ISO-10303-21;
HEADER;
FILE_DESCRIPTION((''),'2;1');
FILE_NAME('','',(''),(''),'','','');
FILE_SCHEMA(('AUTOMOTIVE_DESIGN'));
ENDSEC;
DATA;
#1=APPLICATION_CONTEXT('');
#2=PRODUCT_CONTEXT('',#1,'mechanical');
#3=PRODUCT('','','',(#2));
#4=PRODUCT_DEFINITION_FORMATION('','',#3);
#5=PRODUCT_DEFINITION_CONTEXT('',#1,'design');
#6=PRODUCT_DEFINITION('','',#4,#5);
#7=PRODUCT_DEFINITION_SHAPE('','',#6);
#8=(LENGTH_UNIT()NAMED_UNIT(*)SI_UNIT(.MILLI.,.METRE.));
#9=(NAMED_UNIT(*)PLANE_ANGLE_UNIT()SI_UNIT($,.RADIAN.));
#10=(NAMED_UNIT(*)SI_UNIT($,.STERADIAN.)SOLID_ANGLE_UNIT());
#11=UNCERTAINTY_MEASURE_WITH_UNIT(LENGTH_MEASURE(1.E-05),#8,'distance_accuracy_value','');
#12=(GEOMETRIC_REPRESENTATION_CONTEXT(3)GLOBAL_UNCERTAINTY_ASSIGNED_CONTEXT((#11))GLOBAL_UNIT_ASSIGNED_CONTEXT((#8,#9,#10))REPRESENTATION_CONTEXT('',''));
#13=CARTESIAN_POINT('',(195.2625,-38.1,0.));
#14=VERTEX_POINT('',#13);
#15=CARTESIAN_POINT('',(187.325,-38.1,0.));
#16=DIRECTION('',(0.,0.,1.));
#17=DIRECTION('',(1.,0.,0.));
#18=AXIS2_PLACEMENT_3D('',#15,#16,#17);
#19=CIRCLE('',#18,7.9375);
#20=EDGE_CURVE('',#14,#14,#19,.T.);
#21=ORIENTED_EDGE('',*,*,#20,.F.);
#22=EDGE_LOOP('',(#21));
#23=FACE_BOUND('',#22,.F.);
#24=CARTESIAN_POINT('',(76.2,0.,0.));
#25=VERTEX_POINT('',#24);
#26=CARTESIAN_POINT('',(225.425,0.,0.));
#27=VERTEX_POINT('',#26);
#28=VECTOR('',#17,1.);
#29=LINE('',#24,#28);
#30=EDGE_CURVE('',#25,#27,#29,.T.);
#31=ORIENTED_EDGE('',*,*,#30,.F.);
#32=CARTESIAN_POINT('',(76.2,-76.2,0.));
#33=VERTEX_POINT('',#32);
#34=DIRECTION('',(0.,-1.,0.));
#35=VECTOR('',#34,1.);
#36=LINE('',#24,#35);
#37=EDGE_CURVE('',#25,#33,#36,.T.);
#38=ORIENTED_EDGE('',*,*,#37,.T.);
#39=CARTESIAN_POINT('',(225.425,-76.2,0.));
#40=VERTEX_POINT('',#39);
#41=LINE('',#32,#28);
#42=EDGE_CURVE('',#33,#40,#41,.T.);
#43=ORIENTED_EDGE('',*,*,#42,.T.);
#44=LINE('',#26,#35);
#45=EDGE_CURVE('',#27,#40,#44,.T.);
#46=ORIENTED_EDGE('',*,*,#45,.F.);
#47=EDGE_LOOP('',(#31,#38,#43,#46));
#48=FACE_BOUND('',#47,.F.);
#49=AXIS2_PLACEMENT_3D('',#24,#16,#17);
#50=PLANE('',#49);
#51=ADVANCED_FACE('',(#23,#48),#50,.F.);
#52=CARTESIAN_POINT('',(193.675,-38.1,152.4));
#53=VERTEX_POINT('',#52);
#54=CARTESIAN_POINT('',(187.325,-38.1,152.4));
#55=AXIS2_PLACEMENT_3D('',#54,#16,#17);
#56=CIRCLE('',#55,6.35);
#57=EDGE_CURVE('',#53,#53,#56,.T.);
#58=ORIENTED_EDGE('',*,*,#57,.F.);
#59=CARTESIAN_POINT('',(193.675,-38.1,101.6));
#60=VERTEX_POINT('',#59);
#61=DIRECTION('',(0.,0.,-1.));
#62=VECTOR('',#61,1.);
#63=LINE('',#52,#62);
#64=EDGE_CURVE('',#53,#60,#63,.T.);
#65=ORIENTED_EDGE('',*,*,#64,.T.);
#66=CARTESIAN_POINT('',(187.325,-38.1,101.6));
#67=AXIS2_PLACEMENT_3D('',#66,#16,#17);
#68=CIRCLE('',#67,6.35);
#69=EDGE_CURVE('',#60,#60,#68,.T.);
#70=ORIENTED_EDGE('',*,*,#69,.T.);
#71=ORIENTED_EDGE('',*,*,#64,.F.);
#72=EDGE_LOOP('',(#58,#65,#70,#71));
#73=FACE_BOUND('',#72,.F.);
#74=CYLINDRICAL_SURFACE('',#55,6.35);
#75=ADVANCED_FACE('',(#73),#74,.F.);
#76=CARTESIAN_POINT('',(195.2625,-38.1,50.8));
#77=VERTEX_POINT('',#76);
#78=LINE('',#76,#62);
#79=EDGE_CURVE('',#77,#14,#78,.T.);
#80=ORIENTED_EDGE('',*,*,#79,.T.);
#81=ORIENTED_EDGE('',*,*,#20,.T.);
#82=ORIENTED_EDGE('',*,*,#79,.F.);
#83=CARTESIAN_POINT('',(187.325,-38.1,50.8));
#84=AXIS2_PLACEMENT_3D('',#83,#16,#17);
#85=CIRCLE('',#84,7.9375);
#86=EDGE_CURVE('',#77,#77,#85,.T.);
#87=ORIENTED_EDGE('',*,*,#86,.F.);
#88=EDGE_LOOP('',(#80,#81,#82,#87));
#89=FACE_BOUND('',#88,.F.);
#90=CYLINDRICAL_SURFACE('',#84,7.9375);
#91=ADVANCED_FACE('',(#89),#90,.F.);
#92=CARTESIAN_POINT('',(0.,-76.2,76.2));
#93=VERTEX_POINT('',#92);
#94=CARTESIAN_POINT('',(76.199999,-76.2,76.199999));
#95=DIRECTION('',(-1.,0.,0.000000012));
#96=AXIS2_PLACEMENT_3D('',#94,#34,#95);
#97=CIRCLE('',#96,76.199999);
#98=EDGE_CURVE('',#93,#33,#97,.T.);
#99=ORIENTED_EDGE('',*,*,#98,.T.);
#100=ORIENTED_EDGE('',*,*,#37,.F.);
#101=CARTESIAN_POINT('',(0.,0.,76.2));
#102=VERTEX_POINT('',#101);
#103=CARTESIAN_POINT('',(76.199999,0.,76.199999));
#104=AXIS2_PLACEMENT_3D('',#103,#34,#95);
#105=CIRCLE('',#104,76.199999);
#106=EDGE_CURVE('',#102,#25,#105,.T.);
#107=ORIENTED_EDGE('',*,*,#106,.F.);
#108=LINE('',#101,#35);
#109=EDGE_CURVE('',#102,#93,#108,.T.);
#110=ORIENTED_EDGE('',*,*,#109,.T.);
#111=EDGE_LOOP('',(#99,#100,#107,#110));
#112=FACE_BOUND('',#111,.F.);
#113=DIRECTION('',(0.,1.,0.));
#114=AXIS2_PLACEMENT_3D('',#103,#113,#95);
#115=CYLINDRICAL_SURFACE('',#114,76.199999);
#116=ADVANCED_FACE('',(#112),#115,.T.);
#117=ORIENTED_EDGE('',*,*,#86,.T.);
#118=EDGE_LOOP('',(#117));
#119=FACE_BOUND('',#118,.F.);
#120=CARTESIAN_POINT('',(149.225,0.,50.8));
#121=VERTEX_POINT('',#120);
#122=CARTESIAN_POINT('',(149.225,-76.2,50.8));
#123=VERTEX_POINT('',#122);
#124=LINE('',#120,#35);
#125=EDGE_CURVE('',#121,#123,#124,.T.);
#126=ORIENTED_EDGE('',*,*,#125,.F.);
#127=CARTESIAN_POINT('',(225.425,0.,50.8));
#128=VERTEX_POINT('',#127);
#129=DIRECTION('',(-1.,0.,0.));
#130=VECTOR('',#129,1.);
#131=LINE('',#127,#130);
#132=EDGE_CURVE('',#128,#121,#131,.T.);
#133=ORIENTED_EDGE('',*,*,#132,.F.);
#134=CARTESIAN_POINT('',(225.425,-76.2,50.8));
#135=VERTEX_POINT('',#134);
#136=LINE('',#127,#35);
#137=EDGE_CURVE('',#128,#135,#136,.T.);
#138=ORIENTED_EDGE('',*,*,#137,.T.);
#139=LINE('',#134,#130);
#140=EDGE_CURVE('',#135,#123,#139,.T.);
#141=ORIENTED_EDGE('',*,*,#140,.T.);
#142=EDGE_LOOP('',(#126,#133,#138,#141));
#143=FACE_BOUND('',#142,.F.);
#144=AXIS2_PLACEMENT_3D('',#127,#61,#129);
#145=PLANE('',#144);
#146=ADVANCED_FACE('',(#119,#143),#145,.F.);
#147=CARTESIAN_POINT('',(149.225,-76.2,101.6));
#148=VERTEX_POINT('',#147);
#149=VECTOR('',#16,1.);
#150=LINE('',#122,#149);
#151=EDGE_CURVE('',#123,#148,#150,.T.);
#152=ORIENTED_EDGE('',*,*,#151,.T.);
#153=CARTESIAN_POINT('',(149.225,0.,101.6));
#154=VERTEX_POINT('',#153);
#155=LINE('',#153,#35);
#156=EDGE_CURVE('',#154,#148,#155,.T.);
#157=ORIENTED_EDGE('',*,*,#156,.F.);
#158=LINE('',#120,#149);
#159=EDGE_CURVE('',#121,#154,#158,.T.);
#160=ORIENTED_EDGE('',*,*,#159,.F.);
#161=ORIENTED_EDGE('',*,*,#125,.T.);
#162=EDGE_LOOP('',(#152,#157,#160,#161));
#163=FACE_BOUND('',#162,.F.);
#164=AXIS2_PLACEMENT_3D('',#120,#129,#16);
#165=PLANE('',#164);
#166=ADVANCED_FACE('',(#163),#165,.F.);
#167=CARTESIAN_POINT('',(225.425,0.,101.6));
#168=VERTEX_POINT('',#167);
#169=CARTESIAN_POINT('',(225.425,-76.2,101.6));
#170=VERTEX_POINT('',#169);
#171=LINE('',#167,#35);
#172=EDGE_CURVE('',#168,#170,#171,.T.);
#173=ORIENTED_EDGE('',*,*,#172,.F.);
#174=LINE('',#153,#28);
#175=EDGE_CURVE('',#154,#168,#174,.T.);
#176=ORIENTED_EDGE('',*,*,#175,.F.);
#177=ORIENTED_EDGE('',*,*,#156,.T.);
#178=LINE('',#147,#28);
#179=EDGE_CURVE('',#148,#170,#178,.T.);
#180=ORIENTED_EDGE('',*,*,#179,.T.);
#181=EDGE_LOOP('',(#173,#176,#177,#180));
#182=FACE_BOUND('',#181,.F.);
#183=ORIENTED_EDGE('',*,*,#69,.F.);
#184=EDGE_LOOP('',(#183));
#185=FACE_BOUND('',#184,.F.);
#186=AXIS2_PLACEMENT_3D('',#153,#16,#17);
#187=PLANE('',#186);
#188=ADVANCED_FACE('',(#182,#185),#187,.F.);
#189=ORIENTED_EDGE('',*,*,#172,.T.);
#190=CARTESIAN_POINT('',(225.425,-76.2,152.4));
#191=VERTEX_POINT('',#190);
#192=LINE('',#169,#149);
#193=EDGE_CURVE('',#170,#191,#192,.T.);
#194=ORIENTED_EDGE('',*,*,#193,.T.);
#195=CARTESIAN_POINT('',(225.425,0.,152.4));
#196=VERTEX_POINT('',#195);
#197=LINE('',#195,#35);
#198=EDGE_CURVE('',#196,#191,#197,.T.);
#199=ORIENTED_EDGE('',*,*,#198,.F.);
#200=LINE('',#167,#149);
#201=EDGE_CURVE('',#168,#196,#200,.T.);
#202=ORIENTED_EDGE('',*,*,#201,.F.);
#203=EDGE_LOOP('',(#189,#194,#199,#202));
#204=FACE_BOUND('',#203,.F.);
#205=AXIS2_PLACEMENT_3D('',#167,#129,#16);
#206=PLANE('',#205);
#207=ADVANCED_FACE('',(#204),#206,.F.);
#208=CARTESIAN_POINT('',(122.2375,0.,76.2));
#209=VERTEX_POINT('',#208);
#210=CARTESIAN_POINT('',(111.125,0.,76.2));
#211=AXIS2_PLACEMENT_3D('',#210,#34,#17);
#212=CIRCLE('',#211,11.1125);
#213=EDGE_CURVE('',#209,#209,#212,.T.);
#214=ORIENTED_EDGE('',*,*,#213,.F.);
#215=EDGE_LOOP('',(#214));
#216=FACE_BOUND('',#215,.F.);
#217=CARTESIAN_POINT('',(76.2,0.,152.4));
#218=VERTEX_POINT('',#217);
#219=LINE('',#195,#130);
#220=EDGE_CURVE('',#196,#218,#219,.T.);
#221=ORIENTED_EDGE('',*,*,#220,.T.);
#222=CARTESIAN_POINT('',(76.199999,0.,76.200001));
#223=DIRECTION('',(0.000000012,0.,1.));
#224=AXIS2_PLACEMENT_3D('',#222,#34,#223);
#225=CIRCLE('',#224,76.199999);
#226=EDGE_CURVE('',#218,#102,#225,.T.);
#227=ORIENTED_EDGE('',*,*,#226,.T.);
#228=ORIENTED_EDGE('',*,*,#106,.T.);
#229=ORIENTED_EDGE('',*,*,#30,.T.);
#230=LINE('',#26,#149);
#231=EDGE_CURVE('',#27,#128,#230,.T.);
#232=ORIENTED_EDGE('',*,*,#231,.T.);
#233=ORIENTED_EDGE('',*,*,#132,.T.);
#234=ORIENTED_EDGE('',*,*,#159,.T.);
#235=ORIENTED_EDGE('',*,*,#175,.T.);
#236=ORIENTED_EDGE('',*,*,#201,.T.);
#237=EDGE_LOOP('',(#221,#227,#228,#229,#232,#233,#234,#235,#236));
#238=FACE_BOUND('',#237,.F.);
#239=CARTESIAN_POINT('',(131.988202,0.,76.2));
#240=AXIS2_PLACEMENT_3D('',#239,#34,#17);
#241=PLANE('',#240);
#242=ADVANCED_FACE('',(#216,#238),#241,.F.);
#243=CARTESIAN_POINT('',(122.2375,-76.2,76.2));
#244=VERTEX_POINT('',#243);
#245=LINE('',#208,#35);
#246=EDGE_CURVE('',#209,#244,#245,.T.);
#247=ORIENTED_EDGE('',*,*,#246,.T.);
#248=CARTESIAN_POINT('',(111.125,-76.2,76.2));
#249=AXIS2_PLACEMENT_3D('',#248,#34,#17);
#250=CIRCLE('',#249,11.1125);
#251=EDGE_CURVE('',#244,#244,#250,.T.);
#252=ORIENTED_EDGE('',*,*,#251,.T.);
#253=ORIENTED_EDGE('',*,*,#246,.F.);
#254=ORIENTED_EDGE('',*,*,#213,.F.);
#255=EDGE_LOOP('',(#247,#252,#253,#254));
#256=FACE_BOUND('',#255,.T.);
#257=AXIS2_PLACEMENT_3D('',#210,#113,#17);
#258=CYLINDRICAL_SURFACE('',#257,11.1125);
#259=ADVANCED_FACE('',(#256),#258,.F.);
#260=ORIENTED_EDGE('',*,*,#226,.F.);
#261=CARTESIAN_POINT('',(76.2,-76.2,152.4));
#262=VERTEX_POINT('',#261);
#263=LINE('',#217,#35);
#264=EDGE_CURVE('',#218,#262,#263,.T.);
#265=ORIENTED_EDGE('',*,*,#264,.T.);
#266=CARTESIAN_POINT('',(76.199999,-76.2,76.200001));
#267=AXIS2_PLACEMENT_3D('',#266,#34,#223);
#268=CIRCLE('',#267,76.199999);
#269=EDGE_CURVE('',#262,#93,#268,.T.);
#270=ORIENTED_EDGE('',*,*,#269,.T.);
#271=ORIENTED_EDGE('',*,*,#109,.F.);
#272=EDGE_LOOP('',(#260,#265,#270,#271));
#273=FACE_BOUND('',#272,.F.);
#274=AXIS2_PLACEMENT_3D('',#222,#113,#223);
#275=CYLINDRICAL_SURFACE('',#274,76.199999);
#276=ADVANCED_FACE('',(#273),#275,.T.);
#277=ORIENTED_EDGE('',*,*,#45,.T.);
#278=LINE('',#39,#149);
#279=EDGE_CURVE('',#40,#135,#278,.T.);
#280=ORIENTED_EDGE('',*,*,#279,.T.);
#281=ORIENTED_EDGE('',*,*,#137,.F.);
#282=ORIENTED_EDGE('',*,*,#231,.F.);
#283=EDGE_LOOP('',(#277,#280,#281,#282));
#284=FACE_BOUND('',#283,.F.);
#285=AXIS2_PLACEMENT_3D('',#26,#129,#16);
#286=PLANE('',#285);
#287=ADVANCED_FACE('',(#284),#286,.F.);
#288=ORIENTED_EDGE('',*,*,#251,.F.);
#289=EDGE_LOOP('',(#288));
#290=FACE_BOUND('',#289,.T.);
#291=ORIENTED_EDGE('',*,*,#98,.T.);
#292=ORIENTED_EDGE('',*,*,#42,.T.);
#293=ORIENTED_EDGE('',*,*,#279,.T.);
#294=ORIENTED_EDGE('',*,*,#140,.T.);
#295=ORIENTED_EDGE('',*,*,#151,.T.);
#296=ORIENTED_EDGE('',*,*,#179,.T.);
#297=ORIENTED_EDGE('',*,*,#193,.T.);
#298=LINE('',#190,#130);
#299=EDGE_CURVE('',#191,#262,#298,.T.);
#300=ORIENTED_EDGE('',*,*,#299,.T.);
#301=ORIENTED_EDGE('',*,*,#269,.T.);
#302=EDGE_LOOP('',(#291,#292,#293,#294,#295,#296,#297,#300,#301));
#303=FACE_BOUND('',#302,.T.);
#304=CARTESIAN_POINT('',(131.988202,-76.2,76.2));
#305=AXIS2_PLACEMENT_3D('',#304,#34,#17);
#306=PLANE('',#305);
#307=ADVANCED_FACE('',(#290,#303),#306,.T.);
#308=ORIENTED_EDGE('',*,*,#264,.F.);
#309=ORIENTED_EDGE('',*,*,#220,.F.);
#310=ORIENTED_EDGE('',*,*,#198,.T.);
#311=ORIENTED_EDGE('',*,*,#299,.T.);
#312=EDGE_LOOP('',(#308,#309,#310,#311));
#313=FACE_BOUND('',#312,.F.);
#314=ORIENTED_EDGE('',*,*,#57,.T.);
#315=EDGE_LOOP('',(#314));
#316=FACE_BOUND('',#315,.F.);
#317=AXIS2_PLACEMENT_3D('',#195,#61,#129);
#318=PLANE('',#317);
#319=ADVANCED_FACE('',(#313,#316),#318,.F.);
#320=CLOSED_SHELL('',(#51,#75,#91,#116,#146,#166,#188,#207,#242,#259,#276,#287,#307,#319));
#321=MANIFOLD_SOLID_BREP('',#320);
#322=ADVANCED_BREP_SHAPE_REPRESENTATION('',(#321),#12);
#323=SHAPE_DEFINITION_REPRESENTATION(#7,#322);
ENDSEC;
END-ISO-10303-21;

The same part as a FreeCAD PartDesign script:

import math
import FreeCAD as App
import Part
import Sketcher
from FreeCAD import Vector
Q = App.Units.Quantity

doc = App.newDocument("Part")
body = doc.addObject("PartDesign::Body", "Body")

sketch1 = doc.addObject("Sketcher::SketchObject", "Sketch")
body.addObject(sketch1)
sketch1.AttachmentSupport = (doc.XZ_Plane, [""])
sketch1.MapMode = "FlatFace"
sketch1.addGeometry([
    Part.LineSegment(Vector(225.425, 152.4, 0), Vector(76.2, 152.4, 0)),
    Part.ArcOfCircle(Part.Circle(Vector(76.199999, 76.200001, 0), Vector(0, 0, 1), 76.199999), math.radians(89.999999), math.radians(180.000001)),
    Part.ArcOfCircle(Part.Circle(Vector(76.199999, 76.199999, 0), Vector(0, 0, 1), 76.199999), math.radians(179.999999), math.radians(270.000001)),
    Part.LineSegment(Vector(76.2, 0, 0), Vector(225.425, 0, 0)),
    Part.LineSegment(Vector(225.425, 0, 0), Vector(225.425, 50.8, 0)),
    Part.LineSegment(Vector(225.425, 50.8, 0), Vector(149.225, 50.8, 0)),
    Part.LineSegment(Vector(149.225, 50.8, 0), Vector(149.225, 101.6, 0)),
    Part.LineSegment(Vector(149.225, 101.6, 0), Vector(225.425, 101.6, 0)),
    Part.LineSegment(Vector(225.425, 101.6, 0), Vector(225.425, 152.4, 0)),
    Part.Circle(Vector(111.125, 76.2, 0), Vector(0, 0, 1), 11.1125),
], False)
sketch1.addConstraint([
    Sketcher.Constraint("Tangent", 0, 2, 1, 1),
    Sketcher.Constraint("Tangent", 1, 2, 2, 1),
    Sketcher.Constraint("Tangent", 2, 2, 3, 1),
    Sketcher.Constraint("Coincident", 3, 2, 4, 1),
    Sketcher.Constraint("Coincident", 4, 2, 5, 1),
    Sketcher.Constraint("Coincident", 5, 2, 6, 1),
    Sketcher.Constraint("Coincident", 6, 2, 7, 1),
    Sketcher.Constraint("Coincident", 7, 2, 8, 1),
    Sketcher.Constraint("Coincident", 8, 2, 0, 1),
    Sketcher.Constraint("Horizontal", 0),
    Sketcher.Constraint("Horizontal", 3),
    Sketcher.Constraint("Vertical", 4),
    Sketcher.Constraint("Horizontal", 5),
    Sketcher.Constraint("Vertical", 6),
    Sketcher.Constraint("Horizontal", 7),
    Sketcher.Constraint("Vertical", 8),
    Sketcher.Constraint("Equal", 1, 2),
    Sketcher.Constraint("PointOnObject", 1, 2, -2),
    Sketcher.Constraint("PointOnObject", 2, 2, -1),
    Sketcher.Constraint("Horizontal", 2, 3, 9, 3),
    Sketcher.Constraint("Horizontal", 9, 3, 1, 2),
    Sketcher.Constraint("Vertical", 4, 2, 7, 2),
    Sketcher.Constraint("Equal", 4, 6),
    Sketcher.Constraint("Equal", 6, 8),
    Sketcher.Constraint("Radius", 1, Q("3 in")),
    Sketcher.Constraint("DistanceX", 5, 2, 5, 1, Q("3 in")),
    Sketcher.Constraint("Diameter", 9, Q("0.875 in")),
    Sketcher.Constraint("DistanceX", 9, 3, 3, 2, Q("4.5 in")),
    Sketcher.Constraint("DistanceX", 0, 2, 0, 1, Q("5.875 in")),
])
pad1 = doc.addObject("PartDesign::Pad", "Pad")
body.addObject(pad1)
pad1.Profile = sketch1
pad1.Length = Q("3 in")

sketch2 = doc.addObject("Sketcher::SketchObject", "Sketch001")
body.addObject(sketch2)
sketch2.AttachmentSupport = (doc.XY_Plane, [""])
sketch2.MapMode = "FlatFace"
sketch2.AttachmentOffset = App.Placement(Vector(0, 0, 6 * 25.4), App.Rotation())
sketch2.addGeometry(Part.Circle(Vector(187.325, -38.1, 0), Vector(0, 0, 1), 6.35), False)
sketch2.addConstraint([
    Sketcher.Constraint("Diameter", 0, Q("0.5 in")),
    Sketcher.Constraint("DistanceY", 0, 3, -1, 1, Q("1.5 in")),
    Sketcher.Constraint("DistanceX", -1, 1, 0, 3, Q("7.375 in")),
])
pocket1 = doc.addObject("PartDesign::Pocket", "Pocket")
body.addObject(pocket1)
pocket1.Profile = sketch2
pocket1.Length = Q("3.19 in")

sketch3 = doc.addObject("Sketcher::SketchObject", "Sketch002")
body.addObject(sketch3)
sketch3.AttachmentSupport = (doc.XY_Plane, [""])
sketch3.MapMode = "FlatFace"
sketch3.AttachmentOffset = App.Placement(Vector(0, 0, 2 * 25.4), App.Rotation())
sketch3.addGeometry(Part.Circle(Vector(187.325, -38.1, 0), Vector(0, 0, 1), 7.9375), False)
sketch3.addConstraint([
    Sketcher.Constraint("Diameter", 0, Q("0.625 in")),
    Sketcher.Constraint("DistanceY", 0, 3, -1, 1, Q("1.5 in")),
    Sketcher.Constraint("DistanceX", -1, 1, 0, 3, Q("7.375 in")),
])
pocket2 = doc.addObject("PartDesign::Pocket", "Pocket001")
body.addObject(pocket2)
pocket2.Profile = sketch3
pocket2.Length = Q("2.57 in")

doc.recompute()
